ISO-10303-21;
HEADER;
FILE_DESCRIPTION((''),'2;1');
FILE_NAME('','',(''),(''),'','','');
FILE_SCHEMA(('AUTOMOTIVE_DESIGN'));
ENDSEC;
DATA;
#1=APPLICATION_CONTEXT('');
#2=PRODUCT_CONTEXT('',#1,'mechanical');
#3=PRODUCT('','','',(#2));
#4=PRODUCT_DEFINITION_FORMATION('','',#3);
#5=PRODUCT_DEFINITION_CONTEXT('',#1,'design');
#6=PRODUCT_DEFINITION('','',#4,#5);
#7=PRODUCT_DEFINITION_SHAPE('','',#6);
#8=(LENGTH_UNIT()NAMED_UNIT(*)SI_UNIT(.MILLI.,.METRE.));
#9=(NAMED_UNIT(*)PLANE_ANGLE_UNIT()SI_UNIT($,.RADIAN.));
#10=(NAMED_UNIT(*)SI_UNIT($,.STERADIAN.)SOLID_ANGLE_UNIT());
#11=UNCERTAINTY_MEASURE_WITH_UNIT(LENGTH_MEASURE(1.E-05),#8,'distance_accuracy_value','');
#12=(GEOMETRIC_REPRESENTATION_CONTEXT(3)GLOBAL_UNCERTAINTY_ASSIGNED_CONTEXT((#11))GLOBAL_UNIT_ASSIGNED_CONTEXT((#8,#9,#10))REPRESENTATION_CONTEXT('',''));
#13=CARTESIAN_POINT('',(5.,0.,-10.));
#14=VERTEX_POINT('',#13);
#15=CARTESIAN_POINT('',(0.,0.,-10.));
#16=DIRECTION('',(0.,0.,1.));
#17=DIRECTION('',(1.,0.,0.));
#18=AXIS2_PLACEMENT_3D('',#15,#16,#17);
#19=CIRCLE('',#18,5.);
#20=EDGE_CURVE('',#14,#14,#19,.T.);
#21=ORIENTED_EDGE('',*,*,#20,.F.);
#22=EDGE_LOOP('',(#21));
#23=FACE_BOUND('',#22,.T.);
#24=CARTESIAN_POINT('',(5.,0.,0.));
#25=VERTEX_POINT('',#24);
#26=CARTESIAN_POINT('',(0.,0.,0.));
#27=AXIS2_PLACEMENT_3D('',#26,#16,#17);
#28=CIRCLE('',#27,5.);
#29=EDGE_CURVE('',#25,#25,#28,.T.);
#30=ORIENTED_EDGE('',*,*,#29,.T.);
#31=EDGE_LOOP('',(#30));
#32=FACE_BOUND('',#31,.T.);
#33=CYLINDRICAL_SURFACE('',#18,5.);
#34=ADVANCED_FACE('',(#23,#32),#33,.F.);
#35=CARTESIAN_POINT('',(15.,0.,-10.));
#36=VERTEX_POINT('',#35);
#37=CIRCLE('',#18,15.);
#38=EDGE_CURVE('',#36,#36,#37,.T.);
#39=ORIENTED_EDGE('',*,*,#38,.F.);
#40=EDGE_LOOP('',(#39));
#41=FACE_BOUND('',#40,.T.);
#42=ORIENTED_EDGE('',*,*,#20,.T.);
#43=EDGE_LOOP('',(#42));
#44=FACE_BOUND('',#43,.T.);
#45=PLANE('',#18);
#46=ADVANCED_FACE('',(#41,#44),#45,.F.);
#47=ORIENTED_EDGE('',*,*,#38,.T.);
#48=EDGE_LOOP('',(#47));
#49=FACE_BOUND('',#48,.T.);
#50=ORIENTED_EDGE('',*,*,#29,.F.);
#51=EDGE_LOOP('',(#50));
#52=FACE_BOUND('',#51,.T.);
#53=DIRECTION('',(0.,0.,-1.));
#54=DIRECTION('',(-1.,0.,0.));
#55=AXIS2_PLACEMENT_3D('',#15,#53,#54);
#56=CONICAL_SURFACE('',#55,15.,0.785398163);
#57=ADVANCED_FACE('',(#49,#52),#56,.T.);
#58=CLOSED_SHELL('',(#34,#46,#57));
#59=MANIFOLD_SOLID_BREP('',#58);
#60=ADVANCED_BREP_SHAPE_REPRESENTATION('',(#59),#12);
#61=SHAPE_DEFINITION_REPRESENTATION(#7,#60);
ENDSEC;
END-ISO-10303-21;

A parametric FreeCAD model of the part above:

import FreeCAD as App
import Part
import Sketcher

doc = App.newDocument("Part")
body = doc.addObject("PartDesign::Body", "Body")

# Sketch on XZ plane
sketch1 = doc.addObject("Sketcher::SketchObject", "Sketch")
body.addObject(sketch1)
sketch1.AttachmentSupport = (doc.XZ_Plane, [""])
sketch1.MapMode = "FlatFace"
sketch1.addGeometry(Part.LineSegment(App.Vector(-5, 0, 0), App.Vector(0, 0, 0)), False)
sketch1.addGeometry(Part.LineSegment(App.Vector(0, 0, 0), App.Vector(0, -10, 0)), False)
sketch1.addGeometry(Part.LineSegment(App.Vector(0, -10, 0), App.Vector(-15, -10, 0)), False)
sketch1.addGeometry(Part.LineSegment(App.Vector(-15, -10, 0), App.Vector(-5, 0, 0)), False)
sketch1.addConstraint(Sketcher.Constraint("Coincident", 0, 2, 1, 1))
sketch1.addConstraint(Sketcher.Constraint("Coincident", 1, 2, 2, 1))
sketch1.addConstraint(Sketcher.Constraint("Coincident", 2, 2, 3, 1))
sketch1.addConstraint(Sketcher.Constraint("Coincident", 3, 2, 0, 1))
sketch1.addConstraint(Sketcher.Constraint("Horizontal", 0))
sketch1.addConstraint(Sketcher.Constraint("Vertical", 1))
sketch1.addConstraint(Sketcher.Constraint("Horizontal", 2))
sketch1.addConstraint(Sketcher.Constraint("Coincident", 0, 2, -1, 1))
sketch1.addConstraint(Sketcher.Constraint("DistanceX", 0, 1, 0, 2, 5.0))
sketch1.addConstraint(Sketcher.Constraint("DistanceX", 2, 2, 2, 1, 15.0))
sketch1.addConstraint(Sketcher.Constraint("DistanceY", 1, 2, 1, 1, 10.0))
revolution = doc.addObject("PartDesign::Revolution", "Revolution")
body.addObject(revolution)
revolution.Profile = sketch1
revolution.ReferenceAxis = (sketch1, ["V_Axis"])
revolution.Angle = 360

# Sketch on XY plane
sketch2 = doc.addObject("Sketcher::SketchObject", "Sketch001")
body.addObject(sketch2)
sketch2.AttachmentSupport = (doc.XY_Plane, [""])
sketch2.MapMode = "FlatFace"
sketch2.addGeometry(Part.Circle(App.Vector(0, 0, 0), App.Vector(0, 0, 1), 5), False)
sketch2.addConstraint(Sketcher.Constraint("Coincident", 0, 3, -1, 1))
sketch2.addConstraint(Sketcher.Constraint("Diameter", 0, 10.0))
pocket1 = doc.addObject("PartDesign::Pocket", "Pocket")
body.addObject(pocket1)
pocket1.Profile = sketch2
pocket1.Type = "ThroughAll"

doc.recompute()
